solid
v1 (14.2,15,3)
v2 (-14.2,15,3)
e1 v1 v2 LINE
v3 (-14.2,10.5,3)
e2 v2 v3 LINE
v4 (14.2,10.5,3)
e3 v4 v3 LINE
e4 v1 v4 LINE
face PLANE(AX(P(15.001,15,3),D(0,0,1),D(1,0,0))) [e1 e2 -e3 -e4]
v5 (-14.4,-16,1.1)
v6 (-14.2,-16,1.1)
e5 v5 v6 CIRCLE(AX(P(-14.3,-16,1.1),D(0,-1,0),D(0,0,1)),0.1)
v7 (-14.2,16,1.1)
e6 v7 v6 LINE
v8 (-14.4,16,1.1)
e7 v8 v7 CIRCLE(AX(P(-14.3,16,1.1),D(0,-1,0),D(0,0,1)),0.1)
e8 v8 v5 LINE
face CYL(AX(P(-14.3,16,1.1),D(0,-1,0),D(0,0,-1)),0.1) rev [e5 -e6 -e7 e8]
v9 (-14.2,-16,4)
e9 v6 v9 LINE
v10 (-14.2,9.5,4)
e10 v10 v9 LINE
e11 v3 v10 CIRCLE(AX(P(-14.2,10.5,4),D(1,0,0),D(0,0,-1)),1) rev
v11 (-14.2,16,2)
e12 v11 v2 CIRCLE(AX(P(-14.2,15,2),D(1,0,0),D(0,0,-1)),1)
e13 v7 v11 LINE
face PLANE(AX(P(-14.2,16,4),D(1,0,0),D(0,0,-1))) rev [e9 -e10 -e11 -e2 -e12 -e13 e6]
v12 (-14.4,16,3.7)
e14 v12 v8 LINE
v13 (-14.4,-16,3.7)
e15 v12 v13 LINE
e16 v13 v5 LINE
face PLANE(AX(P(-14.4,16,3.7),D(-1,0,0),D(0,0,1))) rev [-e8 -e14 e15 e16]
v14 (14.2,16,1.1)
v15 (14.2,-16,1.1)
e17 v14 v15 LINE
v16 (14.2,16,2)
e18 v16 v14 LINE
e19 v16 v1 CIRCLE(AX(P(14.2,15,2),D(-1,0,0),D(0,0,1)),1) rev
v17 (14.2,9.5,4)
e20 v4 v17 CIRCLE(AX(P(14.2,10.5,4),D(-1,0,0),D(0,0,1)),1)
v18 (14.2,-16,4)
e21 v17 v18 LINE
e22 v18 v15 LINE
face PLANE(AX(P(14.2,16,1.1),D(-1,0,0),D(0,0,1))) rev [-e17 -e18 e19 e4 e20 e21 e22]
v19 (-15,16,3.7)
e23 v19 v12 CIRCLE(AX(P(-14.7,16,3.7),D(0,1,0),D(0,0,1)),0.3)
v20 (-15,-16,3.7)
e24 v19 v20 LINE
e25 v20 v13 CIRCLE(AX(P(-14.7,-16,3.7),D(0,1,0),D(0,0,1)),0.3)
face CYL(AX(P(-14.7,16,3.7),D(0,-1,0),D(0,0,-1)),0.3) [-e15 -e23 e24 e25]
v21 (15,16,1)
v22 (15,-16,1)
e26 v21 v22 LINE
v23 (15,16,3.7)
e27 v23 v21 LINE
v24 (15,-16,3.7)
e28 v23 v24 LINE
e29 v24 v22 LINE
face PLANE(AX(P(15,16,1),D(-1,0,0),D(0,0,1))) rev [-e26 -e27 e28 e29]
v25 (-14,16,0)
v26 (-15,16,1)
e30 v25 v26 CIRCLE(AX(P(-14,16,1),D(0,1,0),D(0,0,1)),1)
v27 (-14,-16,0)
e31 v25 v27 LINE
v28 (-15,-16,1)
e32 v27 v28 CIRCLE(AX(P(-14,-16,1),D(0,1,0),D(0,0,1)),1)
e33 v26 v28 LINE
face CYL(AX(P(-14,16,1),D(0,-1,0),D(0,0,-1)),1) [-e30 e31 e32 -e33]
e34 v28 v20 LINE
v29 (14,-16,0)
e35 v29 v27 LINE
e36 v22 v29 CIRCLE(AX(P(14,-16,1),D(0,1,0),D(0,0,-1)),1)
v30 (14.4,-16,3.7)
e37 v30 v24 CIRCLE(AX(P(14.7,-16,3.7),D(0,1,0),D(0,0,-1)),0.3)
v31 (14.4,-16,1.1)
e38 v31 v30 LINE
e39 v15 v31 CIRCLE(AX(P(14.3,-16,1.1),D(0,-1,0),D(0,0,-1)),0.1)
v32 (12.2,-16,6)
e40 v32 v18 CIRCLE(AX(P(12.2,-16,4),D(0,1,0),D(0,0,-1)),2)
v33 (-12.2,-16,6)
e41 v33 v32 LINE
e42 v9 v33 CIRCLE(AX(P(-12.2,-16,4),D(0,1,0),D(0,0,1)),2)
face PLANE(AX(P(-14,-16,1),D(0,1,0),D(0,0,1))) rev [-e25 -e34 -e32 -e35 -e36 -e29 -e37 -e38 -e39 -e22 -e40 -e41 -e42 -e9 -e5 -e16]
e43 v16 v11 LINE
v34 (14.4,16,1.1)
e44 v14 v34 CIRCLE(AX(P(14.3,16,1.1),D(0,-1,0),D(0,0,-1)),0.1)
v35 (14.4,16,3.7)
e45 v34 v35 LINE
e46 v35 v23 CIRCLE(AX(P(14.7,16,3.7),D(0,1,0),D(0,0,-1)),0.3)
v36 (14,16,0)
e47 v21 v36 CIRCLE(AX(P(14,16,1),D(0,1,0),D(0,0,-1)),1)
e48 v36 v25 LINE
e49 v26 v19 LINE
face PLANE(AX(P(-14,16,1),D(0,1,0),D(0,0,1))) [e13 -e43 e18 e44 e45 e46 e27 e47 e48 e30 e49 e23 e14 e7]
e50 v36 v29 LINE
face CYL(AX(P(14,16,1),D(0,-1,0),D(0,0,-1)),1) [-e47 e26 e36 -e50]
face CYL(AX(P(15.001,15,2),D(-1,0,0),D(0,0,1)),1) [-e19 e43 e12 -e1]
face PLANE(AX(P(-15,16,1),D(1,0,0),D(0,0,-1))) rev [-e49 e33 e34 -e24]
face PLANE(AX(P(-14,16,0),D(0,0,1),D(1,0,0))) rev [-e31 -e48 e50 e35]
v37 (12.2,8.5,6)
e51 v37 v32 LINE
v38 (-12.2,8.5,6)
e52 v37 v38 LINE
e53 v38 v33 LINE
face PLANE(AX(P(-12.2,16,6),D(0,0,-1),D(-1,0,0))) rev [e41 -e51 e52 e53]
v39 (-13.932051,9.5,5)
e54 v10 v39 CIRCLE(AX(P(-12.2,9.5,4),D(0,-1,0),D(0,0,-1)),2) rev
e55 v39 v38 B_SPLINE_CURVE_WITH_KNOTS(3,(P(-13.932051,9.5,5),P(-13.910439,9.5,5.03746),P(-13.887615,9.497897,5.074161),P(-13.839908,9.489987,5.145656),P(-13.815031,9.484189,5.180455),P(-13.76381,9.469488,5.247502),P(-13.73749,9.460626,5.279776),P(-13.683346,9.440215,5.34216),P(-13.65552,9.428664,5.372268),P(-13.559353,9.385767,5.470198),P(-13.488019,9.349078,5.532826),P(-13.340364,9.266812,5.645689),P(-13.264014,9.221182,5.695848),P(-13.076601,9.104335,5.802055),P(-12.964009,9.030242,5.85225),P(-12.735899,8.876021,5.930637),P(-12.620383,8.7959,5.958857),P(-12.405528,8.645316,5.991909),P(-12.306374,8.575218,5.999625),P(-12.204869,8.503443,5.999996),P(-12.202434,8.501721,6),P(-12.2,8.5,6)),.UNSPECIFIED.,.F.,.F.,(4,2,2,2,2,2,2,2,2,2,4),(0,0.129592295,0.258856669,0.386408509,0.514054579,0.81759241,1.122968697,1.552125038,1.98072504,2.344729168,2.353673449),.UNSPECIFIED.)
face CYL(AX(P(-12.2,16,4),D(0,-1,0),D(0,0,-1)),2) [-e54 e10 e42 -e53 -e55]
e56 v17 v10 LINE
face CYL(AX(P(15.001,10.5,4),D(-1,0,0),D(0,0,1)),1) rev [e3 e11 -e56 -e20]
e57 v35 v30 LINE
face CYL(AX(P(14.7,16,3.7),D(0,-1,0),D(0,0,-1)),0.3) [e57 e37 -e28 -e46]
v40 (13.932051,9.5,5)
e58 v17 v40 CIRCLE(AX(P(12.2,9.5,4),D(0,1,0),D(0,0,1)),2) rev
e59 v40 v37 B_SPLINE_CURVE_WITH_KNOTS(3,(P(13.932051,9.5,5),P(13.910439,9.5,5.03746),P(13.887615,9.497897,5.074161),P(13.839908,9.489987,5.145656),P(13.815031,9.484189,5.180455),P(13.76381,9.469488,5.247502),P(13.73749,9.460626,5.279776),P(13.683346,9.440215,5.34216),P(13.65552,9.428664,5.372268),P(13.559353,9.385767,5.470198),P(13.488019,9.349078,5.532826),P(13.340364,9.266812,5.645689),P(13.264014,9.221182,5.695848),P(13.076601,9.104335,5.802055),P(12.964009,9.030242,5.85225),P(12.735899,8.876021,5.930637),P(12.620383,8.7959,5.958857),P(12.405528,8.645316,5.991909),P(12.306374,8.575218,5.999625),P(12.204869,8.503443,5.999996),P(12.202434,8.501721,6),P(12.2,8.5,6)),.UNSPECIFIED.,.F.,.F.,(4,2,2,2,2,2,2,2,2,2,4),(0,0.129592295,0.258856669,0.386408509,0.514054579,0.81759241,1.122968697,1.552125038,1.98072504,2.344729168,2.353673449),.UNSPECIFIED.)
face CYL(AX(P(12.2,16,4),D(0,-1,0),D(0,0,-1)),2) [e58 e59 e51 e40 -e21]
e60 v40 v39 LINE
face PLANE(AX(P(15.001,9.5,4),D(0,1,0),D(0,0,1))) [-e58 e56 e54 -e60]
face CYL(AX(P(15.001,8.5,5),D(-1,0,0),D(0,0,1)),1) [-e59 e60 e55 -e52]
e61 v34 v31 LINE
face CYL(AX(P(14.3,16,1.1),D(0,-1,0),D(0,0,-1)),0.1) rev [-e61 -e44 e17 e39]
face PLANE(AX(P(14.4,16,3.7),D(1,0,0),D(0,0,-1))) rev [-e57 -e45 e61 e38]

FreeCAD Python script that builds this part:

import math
import FreeCAD as App
import Part
import Sketcher

V = App.Vector

doc = App.newDocument("Part")
params = doc.addObject("Spreadsheet::Sheet", "Params")
for row, (alias, value) in enumerate([
    ("sketch1_radius", "1 mm"),
    ("sketch1_radius2", "2 mm"),
    ("sketch1_radius3", "0.3 mm"),
    ("sketch1_radius4", "0.1 mm"),
    ("sketch1_width", "28 mm"),
    ("pad1_length", "32 mm"),
    ("sketch2_radius", "1 mm"),
    ("sketch2_height", "4 mm"),
    ("sketch2_width", "4.5 mm"),
    ("pocket1_length", "14.2 mm"),
    ("sketch3_radius", "1 mm"),
    ("sketch3_height", "4 mm"),
    ("sketch3_width", "4.5 mm"),
    ("pocket2_length", "14.2 mm"),
], start=1):
    params.set(f"A{row}", alias)
    params.set(f"B{row}", "=" + value)
    params.setAlias(f"B{row}", alias)

body = doc.addObject("PartDesign::Body", "Body")

# Sketch on XZ plane
sketch1 = body.newObject("Sketcher::SketchObject", "Sketch")
sketch1.AttachmentSupport = (doc.getObject("XZ_Plane"), [""])
sketch1.MapMode = "FlatFace"
sketch1.addGeometry([
    Part.LineSegment(V(14, 0, 0), V(-14, 0, 0)),  # 0
    Part.ArcOfCircle(Part.Circle(V(-14, 1, 0), V(0, 0, 1), 1), math.radians(-180), math.radians(-90)),  # 1
    Part.LineSegment(V(-15, 1, 0), V(-15, 3.7, 0)),  # 2
    Part.ArcOfCircle(Part.Circle(V(-14.7, 3.7, 0), V(0, 0, 1), 0.3), math.radians(0), math.radians(180)),  # 3
    Part.LineSegment(V(-14.4, 3.7, 0), V(-14.4, 1.1, 0)),  # 4
    Part.ArcOfCircle(Part.Circle(V(-14.3, 1.1, 0), V(0, 0, 1), 0.1), math.radians(180), math.radians(360)),  # 5
    Part.LineSegment(V(-14.2, 1.1, 0), V(-14.2, 4, 0)),  # 6
    Part.ArcOfCircle(Part.Circle(V(-12.2, 4, 0), V(0, 0, 1), 2), math.radians(90), math.radians(180)),  # 7
    Part.LineSegment(V(-12.2, 6, 0), V(12.2, 6, 0)),  # 8
    Part.ArcOfCircle(Part.Circle(V(12.2, 4, 0), V(0, 0, 1), 2), math.radians(0), math.radians(90)),  # 9
    Part.LineSegment(V(14.2, 4, 0), V(14.2, 1.1, 0)),  # 10
    Part.ArcOfCircle(Part.Circle(V(14.3, 1.1, 0), V(0, 0, 1), 0.1), math.radians(180), math.radians(360)),  # 11
    Part.LineSegment(V(14.4, 1.1, 0), V(14.4, 3.7, 0)),  # 12
    Part.ArcOfCircle(Part.Circle(V(14.7, 3.7, 0), V(0, 0, 1), 0.3), math.radians(0), math.radians(180)),  # 13
    Part.LineSegment(V(15, 3.7, 0), V(15, 1, 0)),  # 14
    Part.ArcOfCircle(Part.Circle(V(14, 1, 0), V(0, 0, 1), 1), math.radians(-90), math.radians(0)),  # 15
], False)
sketch1.addConstraint([
    Sketcher.Constraint("Tangent", 0, 2, 1, 2),
    Sketcher.Constraint("Tangent", 1, 1, 2, 1),
    Sketcher.Constraint("Tangent", 2, 2, 3, 2),
    Sketcher.Constraint("Tangent", 3, 1, 4, 1),
    Sketcher.Constraint("Tangent", 4, 2, 5, 1),
    Sketcher.Constraint("Tangent", 5, 2, 6, 1),
    Sketcher.Constraint("Tangent", 6, 2, 7, 2),
    Sketcher.Constraint("Tangent", 7, 1, 8, 1),
    Sketcher.Constraint("Tangent", 8, 2, 9, 2),
    Sketcher.Constraint("Tangent", 9, 1, 10, 1),
    Sketcher.Constraint("Tangent", 10, 2, 11, 1),
    Sketcher.Constraint("Tangent", 11, 2, 12, 1),
    Sketcher.Constraint("Tangent", 12, 2, 13, 2),
    Sketcher.Constraint("Tangent", 13, 1, 14, 1),
    Sketcher.Constraint("Tangent", 14, 2, 15, 2),
    Sketcher.Constraint("Tangent", 15, 1, 0, 1),
    Sketcher.Constraint("Horizontal", 0),
    Sketcher.Constraint("Vertical", 2),
    Sketcher.Constraint("Vertical", 4),
    Sketcher.Constraint("Vertical", 6),
    Sketcher.Constraint("Horizontal", 8),
    Sketcher.Constraint("Vertical", 10),
    Sketcher.Constraint("Vertical", 12),
    Sketcher.Constraint("Vertical", 14),
    Sketcher.Constraint("Equal", 7, 9),
    Sketcher.Constraint("Equal", 5, 11),
    Sketcher.Constraint("Equal", 3, 13),
    Sketcher.Constraint("Equal", 1, 15),
    Sketcher.Constraint("Symmetric", 0, 2, 15, 1, -1, 1),
    Sketcher.Constraint("Horizontal", 5, 3, 11, 3),
    Sketcher.Constraint("Horizontal", 3, 3, 13, 3),
    Sketcher.Constraint("Radius", 1, 1.0),
    Sketcher.Constraint("Radius", 7, 2.0),
    Sketcher.Constraint("Radius", 3, 0.3),
    Sketcher.Constraint("Radius", 5, 0.1),
    Sketcher.Constraint("DistanceX", 0, 2, 0, 1, 28.0),
    Sketcher.Constraint("DistanceY", 2, 1, 2, 2, 2.7),
    Sketcher.Constraint("DistanceY", 4, 2, 4, 1, 2.6),
    Sketcher.Constraint("DistanceY", 6, 1, 6, 2, 2.9),
])
sketch1.setExpression("Constraints[31]", "Params.sketch1_radius")
sketch1.setExpression("Constraints[32]", "Params.sketch1_radius2")
sketch1.setExpression("Constraints[33]", "Params.sketch1_radius3")
sketch1.setExpression("Constraints[34]", "Params.sketch1_radius4")
sketch1.setExpression("Constraints[35]", "Params.sketch1_width")
pad1 = body.newObject("PartDesign::Pad", "Pad")
pad1.Profile = sketch1
pad1.setExpression("Length", "Params.pad1_length")
pad1.Midplane = True

# Sketch on YZ plane
sketch2 = body.newObject("Sketcher::SketchObject", "Sketch001")
sketch2.AttachmentSupport = (doc.getObject("YZ_Plane"), [""])
sketch2.MapMode = "FlatFace"
sketch2.addGeometry([
    Part.LineSegment(V(10.5, 3, 0), V(15, 3, 0)),  # 0
    Part.ArcOfCircle(Part.Circle(V(15, 2, 0), V(0, 0, 1), 1), math.radians(0), math.radians(90)),  # 1
    Part.LineSegment(V(16, 2, 0), V(16, 6, 0)),  # 2
    Part.LineSegment(V(16, 6, 0), V(8.5, 6, 0)),  # 3
    Part.ArcOfCircle(Part.Circle(V(8.5, 5, 0), V(0, 0, 1), 1), math.radians(0), math.radians(90)),  # 4
    Part.LineSegment(V(9.5, 5, 0), V(9.5, 4, 0)),  # 5
    Part.ArcOfCircle(Part.Circle(V(10.5, 4, 0), V(0, 0, 1), 1), math.radians(-180), math.radians(-90)),  # 6
], False)
sketch2.addConstraint([
    Sketcher.Constraint("Tangent", 0, 2, 1, 2),
    Sketcher.Constraint("Tangent", 1, 1, 2, 1),
    Sketcher.Constraint("Coincident", 2, 2, 3, 1),
    Sketcher.Constraint("Tangent", 3, 2, 4, 2),
    Sketcher.Constraint("Tangent", 4, 1, 5, 1),
    Sketcher.Constraint("Tangent", 5, 2, 6, 1),
    Sketcher.Constraint("Tangent", 6, 2, 0, 1),
    Sketcher.Constraint("Horizontal", 0),
    Sketcher.Constraint("Vertical", 2),
    Sketcher.Constraint("Horizontal", 3),
    Sketcher.Constraint("Vertical", 5),
    Sketcher.Constraint("Equal", 1, 4),
    Sketcher.Constraint("Equal", 4, 6),
    Sketcher.Constraint("Radius", 1, 1.0),
    Sketcher.Constraint("DistanceY", 2, 1, 2, 2, 4.0),
    Sketcher.Constraint("DistanceX", 0, 1, 0, 2, 4.5),
    Sketcher.Constraint("DistanceX", -1, 1, 1, 3, 15.0),
    Sketcher.Constraint("DistanceY", -1, 1, 1, 3, 2.0),
])
sketch2.setExpression("Constraints[13]", "Params.sketch2_radius")
sketch2.setExpression("Constraints[14]", "Params.sketch2_height")
sketch2.setExpression("Constraints[15]", "Params.sketch2_width")
pocket1 = body.newObject("PartDesign::Pocket", "Pocket")
pocket1.Profile = sketch2
pocket1.setExpression("Length", "Params.pocket1_length")

# Sketch on YZ plane
sketch3 = body.newObject("Sketcher::SketchObject", "Sketch002")
sketch3.AttachmentSupport = (doc.getObject("YZ_Plane"), [""])
sketch3.MapMode = "FlatFace"
sketch3.addGeometry([
    Part.LineSegment(V(10.5, 3, 0), V(15, 3, 0)),  # 0
    Part.ArcOfCircle(Part.Circle(V(15, 2, 0), V(0, 0, 1), 1), math.radians(0), math.radians(90)),  # 1
    Part.LineSegment(V(16, 2, 0), V(16, 6, 0)),  # 2
    Part.LineSegment(V(16, 6, 0), V(8.5, 6, 0)),  # 3
    Part.ArcOfCircle(Part.Circle(V(8.5, 5, 0), V(0, 0, 1), 1), math.radians(0), math.radians(90)),  # 4
    Part.LineSegment(V(9.5, 5, 0), V(9.5, 4, 0)),  # 5
    Part.ArcOfCircle(Part.Circle(V(10.5, 4, 0), V(0, 0, 1), 1), math.radians(-180), math.radians(-90)),  # 6
], False)
sketch3.addConstraint([
    Sketcher.Constraint("Tangent", 0, 2, 1, 2),
    Sketcher.Constraint("Tangent", 1, 1, 2, 1),
    Sketcher.Constraint("Coincident", 2, 2, 3, 1),
    Sketcher.Constraint("Tangent", 3, 2, 4, 2),
    Sketcher.Constraint("Tangent", 4, 1, 5, 1),
    Sketcher.Constraint("Tangent", 5, 2, 6, 1),
    Sketcher.Constraint("Tangent", 6, 2, 0, 1),
    Sketcher.Constraint("Horizontal", 0),
    Sketcher.Constraint("Vertical", 2),
    Sketcher.Constraint("Horizontal", 3),
    Sketcher.Constraint("Vertical", 5),
    Sketcher.Constraint("Equal", 1, 4),
    Sketcher.Constraint("Equal", 4, 6),
    Sketcher.Constraint("Radius", 1, 1.0),
    Sketcher.Constraint("DistanceY", 2, 1, 2, 2, 4.0),
    Sketcher.Constraint("DistanceX", 0, 1, 0, 2, 4.5),
    Sketcher.Constraint("DistanceX", -1, 1, 1, 3, 15.0),
    Sketcher.Constraint("DistanceY", -1, 1, 1, 3, 2.0),
])
sketch3.setExpression("Constraints[13]", "Params.sketch3_radius")
sketch3.setExpression("Constraints[14]", "Params.sketch3_height")
sketch3.setExpression("Constraints[15]", "Params.sketch3_width")
pocket2 = body.newObject("PartDesign::Pocket", "Pocket001")
pocket2.Profile = sketch3
pocket2.setExpression("Length", "Params.pocket2_length")
pocket2.Reversed = True

doc.recompute()
